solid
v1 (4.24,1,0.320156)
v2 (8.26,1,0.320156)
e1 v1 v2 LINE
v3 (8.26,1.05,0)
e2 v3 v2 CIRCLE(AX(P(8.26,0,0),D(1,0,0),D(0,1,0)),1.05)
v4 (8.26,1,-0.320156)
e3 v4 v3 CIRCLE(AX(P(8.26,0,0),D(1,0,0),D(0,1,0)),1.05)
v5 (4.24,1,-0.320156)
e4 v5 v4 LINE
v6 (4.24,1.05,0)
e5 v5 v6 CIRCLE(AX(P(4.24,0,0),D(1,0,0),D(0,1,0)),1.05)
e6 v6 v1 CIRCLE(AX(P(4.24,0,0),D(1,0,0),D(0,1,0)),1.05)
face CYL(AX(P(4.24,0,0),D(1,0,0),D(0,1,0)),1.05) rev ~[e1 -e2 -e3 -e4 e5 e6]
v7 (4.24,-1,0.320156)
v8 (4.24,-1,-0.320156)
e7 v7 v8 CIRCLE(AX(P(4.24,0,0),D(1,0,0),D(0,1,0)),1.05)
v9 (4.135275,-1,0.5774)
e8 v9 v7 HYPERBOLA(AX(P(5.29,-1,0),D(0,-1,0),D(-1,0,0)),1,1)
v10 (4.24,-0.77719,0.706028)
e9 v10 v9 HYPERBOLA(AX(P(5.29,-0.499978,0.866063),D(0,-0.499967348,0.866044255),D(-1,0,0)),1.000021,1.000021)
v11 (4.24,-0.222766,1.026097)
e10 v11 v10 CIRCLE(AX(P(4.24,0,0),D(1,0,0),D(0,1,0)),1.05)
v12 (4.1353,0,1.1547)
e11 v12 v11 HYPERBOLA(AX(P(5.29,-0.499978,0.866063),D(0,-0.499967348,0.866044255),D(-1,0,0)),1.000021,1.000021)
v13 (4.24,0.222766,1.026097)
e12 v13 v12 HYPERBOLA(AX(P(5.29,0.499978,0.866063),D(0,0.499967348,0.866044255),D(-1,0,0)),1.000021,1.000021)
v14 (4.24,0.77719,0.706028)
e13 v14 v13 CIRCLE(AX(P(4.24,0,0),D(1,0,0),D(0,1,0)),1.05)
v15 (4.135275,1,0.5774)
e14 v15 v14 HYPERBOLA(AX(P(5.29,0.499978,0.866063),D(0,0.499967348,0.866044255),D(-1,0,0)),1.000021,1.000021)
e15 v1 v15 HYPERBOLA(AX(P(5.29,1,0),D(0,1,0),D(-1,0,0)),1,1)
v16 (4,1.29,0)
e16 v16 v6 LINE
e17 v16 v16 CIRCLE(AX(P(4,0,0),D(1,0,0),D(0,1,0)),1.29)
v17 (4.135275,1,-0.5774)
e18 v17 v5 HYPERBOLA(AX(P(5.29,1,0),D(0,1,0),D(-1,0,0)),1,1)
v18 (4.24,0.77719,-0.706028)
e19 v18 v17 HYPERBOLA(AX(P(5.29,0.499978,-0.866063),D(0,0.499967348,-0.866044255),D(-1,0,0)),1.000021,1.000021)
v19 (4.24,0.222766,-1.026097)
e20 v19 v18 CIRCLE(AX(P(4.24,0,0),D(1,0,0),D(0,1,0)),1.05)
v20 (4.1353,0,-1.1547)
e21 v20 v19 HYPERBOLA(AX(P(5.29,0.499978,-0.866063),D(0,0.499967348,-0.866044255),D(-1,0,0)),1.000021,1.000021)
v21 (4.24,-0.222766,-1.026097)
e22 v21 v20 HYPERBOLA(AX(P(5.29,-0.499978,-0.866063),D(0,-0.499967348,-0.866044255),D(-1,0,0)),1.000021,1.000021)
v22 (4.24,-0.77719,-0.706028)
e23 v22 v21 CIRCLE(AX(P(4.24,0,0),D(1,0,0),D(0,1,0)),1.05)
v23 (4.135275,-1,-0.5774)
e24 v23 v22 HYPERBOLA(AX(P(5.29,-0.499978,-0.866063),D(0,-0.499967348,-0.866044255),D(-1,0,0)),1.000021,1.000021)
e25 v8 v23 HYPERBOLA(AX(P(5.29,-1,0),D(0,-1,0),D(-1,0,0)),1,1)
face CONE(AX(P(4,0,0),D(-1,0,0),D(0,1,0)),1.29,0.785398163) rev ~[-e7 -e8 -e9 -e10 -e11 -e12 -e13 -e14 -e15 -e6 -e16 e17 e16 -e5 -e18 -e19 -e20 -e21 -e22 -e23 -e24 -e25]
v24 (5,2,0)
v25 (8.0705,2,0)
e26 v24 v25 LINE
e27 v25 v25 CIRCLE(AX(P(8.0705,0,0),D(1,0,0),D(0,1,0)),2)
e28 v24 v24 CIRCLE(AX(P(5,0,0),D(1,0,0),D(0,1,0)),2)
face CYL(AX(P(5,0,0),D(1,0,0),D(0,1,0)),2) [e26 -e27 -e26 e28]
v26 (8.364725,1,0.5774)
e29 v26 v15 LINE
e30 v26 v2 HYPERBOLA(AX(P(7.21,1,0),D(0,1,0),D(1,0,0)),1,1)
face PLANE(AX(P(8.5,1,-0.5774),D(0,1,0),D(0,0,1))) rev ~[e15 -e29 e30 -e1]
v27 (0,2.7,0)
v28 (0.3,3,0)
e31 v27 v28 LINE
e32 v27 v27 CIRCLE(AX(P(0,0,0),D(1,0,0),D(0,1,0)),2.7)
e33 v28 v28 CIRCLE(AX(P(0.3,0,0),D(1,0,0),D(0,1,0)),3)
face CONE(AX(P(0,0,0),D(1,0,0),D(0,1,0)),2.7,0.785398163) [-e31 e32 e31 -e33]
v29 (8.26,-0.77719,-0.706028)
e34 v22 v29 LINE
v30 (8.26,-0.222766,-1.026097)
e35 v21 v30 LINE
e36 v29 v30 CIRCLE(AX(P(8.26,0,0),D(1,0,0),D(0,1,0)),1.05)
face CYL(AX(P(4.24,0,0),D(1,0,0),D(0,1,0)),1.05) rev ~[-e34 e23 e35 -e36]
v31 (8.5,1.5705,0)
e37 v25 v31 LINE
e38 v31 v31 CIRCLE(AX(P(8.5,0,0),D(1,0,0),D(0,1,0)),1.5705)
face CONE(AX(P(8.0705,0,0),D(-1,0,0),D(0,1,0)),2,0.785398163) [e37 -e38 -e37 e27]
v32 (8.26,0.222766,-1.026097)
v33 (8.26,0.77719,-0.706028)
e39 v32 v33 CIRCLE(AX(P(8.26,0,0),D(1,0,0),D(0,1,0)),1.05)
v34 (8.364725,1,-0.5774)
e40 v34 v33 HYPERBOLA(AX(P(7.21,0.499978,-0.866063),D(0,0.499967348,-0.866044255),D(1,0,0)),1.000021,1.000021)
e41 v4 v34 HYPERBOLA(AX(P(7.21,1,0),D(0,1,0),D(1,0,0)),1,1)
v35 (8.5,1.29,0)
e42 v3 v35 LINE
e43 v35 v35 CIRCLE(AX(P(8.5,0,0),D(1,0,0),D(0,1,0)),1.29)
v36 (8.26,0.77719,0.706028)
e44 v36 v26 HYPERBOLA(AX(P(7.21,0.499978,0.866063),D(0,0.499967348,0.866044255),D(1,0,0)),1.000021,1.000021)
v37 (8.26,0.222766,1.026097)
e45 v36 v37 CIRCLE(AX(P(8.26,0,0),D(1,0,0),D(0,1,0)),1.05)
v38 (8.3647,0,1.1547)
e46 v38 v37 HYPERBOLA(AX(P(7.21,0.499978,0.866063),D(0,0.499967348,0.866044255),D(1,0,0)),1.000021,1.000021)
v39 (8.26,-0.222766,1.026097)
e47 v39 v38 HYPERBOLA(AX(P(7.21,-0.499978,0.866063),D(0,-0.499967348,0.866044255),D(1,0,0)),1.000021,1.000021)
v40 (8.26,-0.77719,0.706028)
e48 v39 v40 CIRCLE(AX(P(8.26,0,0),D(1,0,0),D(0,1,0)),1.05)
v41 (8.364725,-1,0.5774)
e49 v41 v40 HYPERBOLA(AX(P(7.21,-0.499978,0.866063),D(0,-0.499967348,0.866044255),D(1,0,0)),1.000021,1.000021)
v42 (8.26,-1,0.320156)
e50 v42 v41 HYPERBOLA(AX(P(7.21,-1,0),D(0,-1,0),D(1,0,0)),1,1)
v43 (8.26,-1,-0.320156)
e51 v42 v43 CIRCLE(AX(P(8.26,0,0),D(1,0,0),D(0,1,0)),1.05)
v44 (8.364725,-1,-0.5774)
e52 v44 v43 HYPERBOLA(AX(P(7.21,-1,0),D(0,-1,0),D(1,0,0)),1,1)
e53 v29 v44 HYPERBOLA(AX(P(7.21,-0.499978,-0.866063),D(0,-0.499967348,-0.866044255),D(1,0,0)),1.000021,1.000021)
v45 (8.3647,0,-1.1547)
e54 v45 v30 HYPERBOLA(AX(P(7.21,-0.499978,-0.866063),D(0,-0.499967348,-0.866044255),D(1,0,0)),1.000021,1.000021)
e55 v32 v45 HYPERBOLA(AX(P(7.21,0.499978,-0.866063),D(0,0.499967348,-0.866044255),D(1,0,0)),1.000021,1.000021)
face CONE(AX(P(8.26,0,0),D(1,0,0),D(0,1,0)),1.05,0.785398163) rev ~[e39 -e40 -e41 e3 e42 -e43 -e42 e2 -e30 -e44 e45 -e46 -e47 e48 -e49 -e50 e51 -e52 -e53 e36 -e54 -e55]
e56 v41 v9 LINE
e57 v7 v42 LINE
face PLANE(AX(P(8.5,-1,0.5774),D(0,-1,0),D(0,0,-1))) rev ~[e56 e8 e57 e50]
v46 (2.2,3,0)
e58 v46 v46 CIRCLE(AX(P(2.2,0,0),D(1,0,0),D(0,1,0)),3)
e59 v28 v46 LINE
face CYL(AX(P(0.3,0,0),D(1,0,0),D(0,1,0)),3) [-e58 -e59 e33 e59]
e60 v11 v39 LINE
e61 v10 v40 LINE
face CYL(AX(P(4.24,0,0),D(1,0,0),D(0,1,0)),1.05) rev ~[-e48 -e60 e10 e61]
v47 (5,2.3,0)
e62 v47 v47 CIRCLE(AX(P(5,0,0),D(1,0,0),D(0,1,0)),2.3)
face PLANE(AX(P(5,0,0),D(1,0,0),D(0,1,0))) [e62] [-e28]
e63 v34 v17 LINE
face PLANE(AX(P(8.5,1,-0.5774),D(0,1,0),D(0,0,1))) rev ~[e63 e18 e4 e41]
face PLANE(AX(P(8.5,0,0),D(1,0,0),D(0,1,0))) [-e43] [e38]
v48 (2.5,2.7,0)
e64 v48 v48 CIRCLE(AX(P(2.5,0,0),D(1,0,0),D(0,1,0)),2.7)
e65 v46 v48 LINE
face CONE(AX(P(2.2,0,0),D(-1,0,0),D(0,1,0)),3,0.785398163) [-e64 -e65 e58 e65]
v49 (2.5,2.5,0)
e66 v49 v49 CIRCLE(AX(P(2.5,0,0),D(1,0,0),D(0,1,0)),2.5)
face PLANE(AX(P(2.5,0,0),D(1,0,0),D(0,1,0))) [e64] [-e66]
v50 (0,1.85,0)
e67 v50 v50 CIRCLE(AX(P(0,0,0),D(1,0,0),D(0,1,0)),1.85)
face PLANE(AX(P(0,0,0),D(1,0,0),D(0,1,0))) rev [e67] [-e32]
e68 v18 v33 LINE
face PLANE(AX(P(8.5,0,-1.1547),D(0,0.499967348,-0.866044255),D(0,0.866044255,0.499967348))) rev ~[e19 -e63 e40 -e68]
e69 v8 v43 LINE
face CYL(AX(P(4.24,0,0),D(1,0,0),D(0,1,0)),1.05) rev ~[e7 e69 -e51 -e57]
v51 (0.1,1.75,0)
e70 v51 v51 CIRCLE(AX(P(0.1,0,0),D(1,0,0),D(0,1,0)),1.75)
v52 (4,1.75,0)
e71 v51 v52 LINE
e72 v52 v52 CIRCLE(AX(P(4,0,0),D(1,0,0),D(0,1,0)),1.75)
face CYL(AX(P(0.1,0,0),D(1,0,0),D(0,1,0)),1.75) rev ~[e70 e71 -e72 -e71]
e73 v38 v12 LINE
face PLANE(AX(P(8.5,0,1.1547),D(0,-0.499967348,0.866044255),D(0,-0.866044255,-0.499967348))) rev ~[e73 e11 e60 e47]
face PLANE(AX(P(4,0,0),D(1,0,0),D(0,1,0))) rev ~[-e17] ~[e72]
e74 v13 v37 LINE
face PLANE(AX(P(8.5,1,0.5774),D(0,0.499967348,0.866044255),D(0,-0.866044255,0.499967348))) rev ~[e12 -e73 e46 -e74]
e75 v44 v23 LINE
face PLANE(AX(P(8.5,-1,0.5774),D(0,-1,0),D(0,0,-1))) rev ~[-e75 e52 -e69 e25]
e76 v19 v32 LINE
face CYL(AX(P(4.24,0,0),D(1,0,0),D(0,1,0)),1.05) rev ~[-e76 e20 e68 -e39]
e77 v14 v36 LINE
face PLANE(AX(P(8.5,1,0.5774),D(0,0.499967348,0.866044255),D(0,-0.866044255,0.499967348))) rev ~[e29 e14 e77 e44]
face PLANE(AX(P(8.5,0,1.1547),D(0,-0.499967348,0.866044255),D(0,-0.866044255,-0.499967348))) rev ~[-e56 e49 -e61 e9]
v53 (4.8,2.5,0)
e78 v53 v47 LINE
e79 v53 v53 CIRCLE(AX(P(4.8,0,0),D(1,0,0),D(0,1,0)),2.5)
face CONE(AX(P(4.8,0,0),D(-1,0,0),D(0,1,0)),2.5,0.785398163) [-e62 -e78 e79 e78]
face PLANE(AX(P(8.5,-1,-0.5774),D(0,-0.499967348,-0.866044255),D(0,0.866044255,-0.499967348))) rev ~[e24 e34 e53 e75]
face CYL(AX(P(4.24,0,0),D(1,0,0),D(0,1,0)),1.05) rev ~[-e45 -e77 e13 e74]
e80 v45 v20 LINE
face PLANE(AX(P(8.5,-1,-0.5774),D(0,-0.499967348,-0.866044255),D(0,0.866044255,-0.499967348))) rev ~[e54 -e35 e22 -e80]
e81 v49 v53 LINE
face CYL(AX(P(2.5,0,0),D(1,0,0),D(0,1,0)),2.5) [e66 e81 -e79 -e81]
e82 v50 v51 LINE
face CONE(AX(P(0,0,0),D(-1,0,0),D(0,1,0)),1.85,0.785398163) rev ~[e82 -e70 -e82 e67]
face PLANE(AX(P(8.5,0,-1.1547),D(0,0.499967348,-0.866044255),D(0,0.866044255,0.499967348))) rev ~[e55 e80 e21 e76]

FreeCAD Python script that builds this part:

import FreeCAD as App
import Part
import Sketcher
Q = App.Units.Quantity


def add_polygon(sketch, points):
    """Adds a closed chain of lines whose ends are joined by coincident constraints."""
    first, n = sketch.GeometryCount, len(points)
    for a, b in zip(points, points[1:] + points[:1]):
        sketch.addGeometry(Part.LineSegment(App.Vector(*a, 0), App.Vector(*b, 0)), False)
    for i in range(n):
        sketch.addConstraint(Sketcher.Constraint("Coincident", first + i, 2, first + (i + 1) % n, 1))

doc = App.newDocument("Part")
params = doc.addObject("Spreadsheet::Sheet", "Params")
for row, (alias, value) in enumerate([
    ("sketch1_width", "8.5 mm"),
    ("sketch1_width2", "2.3 mm"),
    ("sketch1_width3", "1.9 mm"),
    ("sketch1_height", "0.3 mm"),
    ("sketch1_height2", "0.2 mm"),
    ("revolution_angle", "360 deg"),
    ("sketch2_width", "8.5 mm"),
    ("sketch2_width2", "3.9 mm"),
    ("sketch2_width3", "4.02 mm"),
    ("sketch2_height", "1.29 mm"),
    ("sketch2_height2", "0.46 mm"),
    ("groove_angle", "360 deg"),
    ("pocket1_length", "4.5 mm"),
], start=1):
    params.set(f"A{row}", alias)
    params.set(f"B{row}", "=" + value)
    params.setAlias(f"B{row}", alias)

body = doc.addObject("PartDesign::Body", "Body")

# Sketch on XY plane
sketch1 = body.newObject("Sketcher::SketchObject", "Sketch")
sketch1.AttachmentSupport = (doc.getObject("XY_Plane"), [""])
sketch1.MapMode = "FlatFace"
add_polygon(sketch1, [(0, 0), (8.5, 0), (8.5, 1.57), (8.07, 2), (5, 2), (5, 2.3), (4.8, 2.5), (2.5, 2.5), (2.5, 2.7), (2.2, 3), (0.3, 3), (0, 2.7)])  # lines 0-11
sketch1.addConstraint(Sketcher.Constraint("Horizontal", 0))
sketch1.addConstraint(Sketcher.Constraint("Vertical", 1))
sketch1.addConstraint(Sketcher.Constraint("Horizontal", 3))
sketch1.addConstraint(Sketcher.Constraint("Vertical", 4))
sketch1.addConstraint(Sketcher.Constraint("Horizontal", 6))
sketch1.addConstraint(Sketcher.Constraint("Vertical", 7))
sketch1.addConstraint(Sketcher.Constraint("Horizontal", 9))
sketch1.addConstraint(Sketcher.Constraint("Vertical", 11))
sketch1.addConstraint(Sketcher.Constraint("Coincident", 11, 2, -1, 1))
sketch1.addConstraint(Sketcher.Constraint("Parallel", 2, 5))
sketch1.addConstraint(Sketcher.Constraint("Parallel", 5, 8))
sketch1.addConstraint(Sketcher.Constraint("Perpendicular", 8, 10))
sketch1.addConstraint(Sketcher.Constraint("Horizontal", 7, 2, 10, 2))
sketch1.addConstraint(Sketcher.Constraint("Equal", 8, 10))
sketch1.addConstraint(Sketcher.Constraint("DistanceX", 0, 1, 0, 2, Q("8.5 mm")))
sketch1.addConstraint(Sketcher.Constraint("DistanceX", 6, 2, 6, 1, Q("2.3 mm")))
sketch1.addConstraint(Sketcher.Constraint("DistanceX", 9, 2, 9, 1, Q("1.9 mm")))
sketch1.addConstraint(Sketcher.Constraint("DistanceY", 4, 1, 4, 2, Q("0.3 mm")))
sketch1.addConstraint(Sketcher.Constraint("DistanceY", 7, 1, 7, 2, Q("0.2 mm")))
sketch1.addConstraint(Sketcher.Constraint("DistanceY", 11, 2, 11, 1, Q("2.7 mm")))
sketch1.addConstraint(Sketcher.Constraint("DistanceY", -1, 1, 2, 2, Q("2 mm")))
sketch1.addConstraint(Sketcher.Constraint("DistanceX", -1, 1, 3, 2, Q("5 mm")))
sketch1.addConstraint(Sketcher.Constraint("DistanceX", 3, 2, 3, 1, Q("3.0705 mm")))
sketch1.setExpression("Constraints[26]", "Params.sketch1_width")
sketch1.setExpression("Constraints[27]", "Params.sketch1_width2")
sketch1.setExpression("Constraints[28]", "Params.sketch1_width3")
sketch1.setExpression("Constraints[29]", "Params.sketch1_height")
sketch1.setExpression("Constraints[30]", "Params.sketch1_height2")
revolution = body.newObject("PartDesign::Revolution", "Revolution")
revolution.Profile = sketch1
revolution.ReferenceAxis = (sketch1, ["H_Axis"])
revolution.setExpression("Angle", "Params.revolution_angle")

# Sketch on XY plane
sketch2 = body.newObject("Sketcher::SketchObject", "Sketch001")
sketch2.AttachmentSupport = (doc.getObject("XY_Plane"), [""])
sketch2.MapMode = "FlatFace"
add_polygon(sketch2, [(0, 0), (8.5, 0), (8.5, 1.29), (8.26, 1.05), (4.24, 1.05), (4, 1.29), (4, 1.75), (0.1, 1.75), (0, 1.85)])  # lines 0-8
sketch2.addConstraint(Sketcher.Constraint("Horizontal", 0))
sketch2.addConstraint(Sketcher.Constraint("Vertical", 1))
sketch2.addConstraint(Sketcher.Constraint("Horizontal", 3))
sketch2.addConstraint(Sketcher.Constraint("Vertical", 5))
sketch2.addConstraint(Sketcher.Constraint("Horizontal", 6))
sketch2.addConstraint(Sketcher.Constraint("Vertical", 8))
sketch2.addConstraint(Sketcher.Constraint("Coincident", 8, 2, -1, 1))
sketch2.addConstraint(Sketcher.Constraint("Perpendicular", 2, 4))
sketch2.addConstraint(Sketcher.Constraint("Parallel", 4, 7))
sketch2.addConstraint(Sketcher.Constraint("Horizontal", 1, 2, 4, 2))
sketch2.addConstraint(Sketcher.Constraint("Equal", 2, 4))
sketch2.addConstraint(Sketcher.Constraint("DistanceX", 0, 1, 0, 2, Q("8.5 mm")))
sketch2.addConstraint(Sketcher.Constraint("DistanceX", 6, 2, 6, 1, Q("3.9 mm")))
sketch2.addConstraint(Sketcher.Constraint("DistanceX", -1, 1, 4, 2, Q("4 mm")))
sketch2.addConstraint(Sketcher.Constraint("DistanceX", 3, 2, 3, 1, Q("4.02 mm")))
sketch2.addConstraint(Sketcher.Constraint("DistanceY", 1, 1, 1, 2, Q("1.29 mm")))
sketch2.addConstraint(Sketcher.Constraint("DistanceY", 5, 1, 5, 2, Q("0.46 mm")))
sketch2.setExpression("Constraints[20]", "Params.sketch2_width")
sketch2.setExpression("Constraints[21]", "Params.sketch2_width2")
sketch2.setExpression("Constraints[23]", "Params.sketch2_width3")
sketch2.setExpression("Constraints[24]", "Params.sketch2_height")
sketch2.setExpression("Constraints[25]", "Params.sketch2_height2")
groove = body.newObject("PartDesign::Groove", "Groove")
groove.Profile = sketch2
groove.ReferenceAxis = (sketch2, ["H_Axis"])
groove.setExpression("Angle", "Params.groove_angle")

# Sketch on YZ plane
sketch3 = body.newObject("Sketcher::SketchObject", "Sketch002")
sketch3.AttachmentSupport = (doc.getObject("YZ_Plane"), [""])
sketch3.MapMode = "FlatFace"
sketch3.AttachmentOffset = App.Placement(App.Vector(0, 0, 8.5), App.Rotation())
add_polygon(sketch3, [(-1, 0.6), (-1, -0.6), (0, -1.2), (1, -0.6), (1, 0.6), (0, 1.2)])  # lines 0-5
sketch3.addConstraint(Sketcher.Constraint("Vertical", 0))
sketch3.addConstraint(Sketcher.Constraint("Vertical", 3))
sketch3.addConstraint(Sketcher.Constraint("Symmetric", 0, 2, 3, 2, -1, 1))
sketch3.addConstraint(Sketcher.Constraint("Symmetric", 1, 2, 4, 2, -1, 1))
sketch3.addConstraint(Sketcher.Constraint("PointOnObject", 1, 2, -2))
sketch3.addConstraint(Sketcher.Constraint("Parallel", 2, 5))
sketch3.addConstraint(Sketcher.Constraint("Horizontal", 0, 2, 2, 2))
sketch3.addConstraint(Sketcher.Constraint("DistanceX", 0, 2, -1, 1, Q("1 mm")))
sketch3.addConstraint(Sketcher.Constraint("DistanceY", 0, 2, 0, 1, Q("1.1548 mm")))
sketch3.addConstraint(Sketcher.Constraint("DistanceY", 1, 2, 3, 2, Q("1.732 mm")))
pocket1 = body.newObject("PartDesign::Pocket", "Pocket")
pocket1.Profile = sketch3
pocket1.setExpression("Length", "Params.pocket1_length")

doc.recompute()
